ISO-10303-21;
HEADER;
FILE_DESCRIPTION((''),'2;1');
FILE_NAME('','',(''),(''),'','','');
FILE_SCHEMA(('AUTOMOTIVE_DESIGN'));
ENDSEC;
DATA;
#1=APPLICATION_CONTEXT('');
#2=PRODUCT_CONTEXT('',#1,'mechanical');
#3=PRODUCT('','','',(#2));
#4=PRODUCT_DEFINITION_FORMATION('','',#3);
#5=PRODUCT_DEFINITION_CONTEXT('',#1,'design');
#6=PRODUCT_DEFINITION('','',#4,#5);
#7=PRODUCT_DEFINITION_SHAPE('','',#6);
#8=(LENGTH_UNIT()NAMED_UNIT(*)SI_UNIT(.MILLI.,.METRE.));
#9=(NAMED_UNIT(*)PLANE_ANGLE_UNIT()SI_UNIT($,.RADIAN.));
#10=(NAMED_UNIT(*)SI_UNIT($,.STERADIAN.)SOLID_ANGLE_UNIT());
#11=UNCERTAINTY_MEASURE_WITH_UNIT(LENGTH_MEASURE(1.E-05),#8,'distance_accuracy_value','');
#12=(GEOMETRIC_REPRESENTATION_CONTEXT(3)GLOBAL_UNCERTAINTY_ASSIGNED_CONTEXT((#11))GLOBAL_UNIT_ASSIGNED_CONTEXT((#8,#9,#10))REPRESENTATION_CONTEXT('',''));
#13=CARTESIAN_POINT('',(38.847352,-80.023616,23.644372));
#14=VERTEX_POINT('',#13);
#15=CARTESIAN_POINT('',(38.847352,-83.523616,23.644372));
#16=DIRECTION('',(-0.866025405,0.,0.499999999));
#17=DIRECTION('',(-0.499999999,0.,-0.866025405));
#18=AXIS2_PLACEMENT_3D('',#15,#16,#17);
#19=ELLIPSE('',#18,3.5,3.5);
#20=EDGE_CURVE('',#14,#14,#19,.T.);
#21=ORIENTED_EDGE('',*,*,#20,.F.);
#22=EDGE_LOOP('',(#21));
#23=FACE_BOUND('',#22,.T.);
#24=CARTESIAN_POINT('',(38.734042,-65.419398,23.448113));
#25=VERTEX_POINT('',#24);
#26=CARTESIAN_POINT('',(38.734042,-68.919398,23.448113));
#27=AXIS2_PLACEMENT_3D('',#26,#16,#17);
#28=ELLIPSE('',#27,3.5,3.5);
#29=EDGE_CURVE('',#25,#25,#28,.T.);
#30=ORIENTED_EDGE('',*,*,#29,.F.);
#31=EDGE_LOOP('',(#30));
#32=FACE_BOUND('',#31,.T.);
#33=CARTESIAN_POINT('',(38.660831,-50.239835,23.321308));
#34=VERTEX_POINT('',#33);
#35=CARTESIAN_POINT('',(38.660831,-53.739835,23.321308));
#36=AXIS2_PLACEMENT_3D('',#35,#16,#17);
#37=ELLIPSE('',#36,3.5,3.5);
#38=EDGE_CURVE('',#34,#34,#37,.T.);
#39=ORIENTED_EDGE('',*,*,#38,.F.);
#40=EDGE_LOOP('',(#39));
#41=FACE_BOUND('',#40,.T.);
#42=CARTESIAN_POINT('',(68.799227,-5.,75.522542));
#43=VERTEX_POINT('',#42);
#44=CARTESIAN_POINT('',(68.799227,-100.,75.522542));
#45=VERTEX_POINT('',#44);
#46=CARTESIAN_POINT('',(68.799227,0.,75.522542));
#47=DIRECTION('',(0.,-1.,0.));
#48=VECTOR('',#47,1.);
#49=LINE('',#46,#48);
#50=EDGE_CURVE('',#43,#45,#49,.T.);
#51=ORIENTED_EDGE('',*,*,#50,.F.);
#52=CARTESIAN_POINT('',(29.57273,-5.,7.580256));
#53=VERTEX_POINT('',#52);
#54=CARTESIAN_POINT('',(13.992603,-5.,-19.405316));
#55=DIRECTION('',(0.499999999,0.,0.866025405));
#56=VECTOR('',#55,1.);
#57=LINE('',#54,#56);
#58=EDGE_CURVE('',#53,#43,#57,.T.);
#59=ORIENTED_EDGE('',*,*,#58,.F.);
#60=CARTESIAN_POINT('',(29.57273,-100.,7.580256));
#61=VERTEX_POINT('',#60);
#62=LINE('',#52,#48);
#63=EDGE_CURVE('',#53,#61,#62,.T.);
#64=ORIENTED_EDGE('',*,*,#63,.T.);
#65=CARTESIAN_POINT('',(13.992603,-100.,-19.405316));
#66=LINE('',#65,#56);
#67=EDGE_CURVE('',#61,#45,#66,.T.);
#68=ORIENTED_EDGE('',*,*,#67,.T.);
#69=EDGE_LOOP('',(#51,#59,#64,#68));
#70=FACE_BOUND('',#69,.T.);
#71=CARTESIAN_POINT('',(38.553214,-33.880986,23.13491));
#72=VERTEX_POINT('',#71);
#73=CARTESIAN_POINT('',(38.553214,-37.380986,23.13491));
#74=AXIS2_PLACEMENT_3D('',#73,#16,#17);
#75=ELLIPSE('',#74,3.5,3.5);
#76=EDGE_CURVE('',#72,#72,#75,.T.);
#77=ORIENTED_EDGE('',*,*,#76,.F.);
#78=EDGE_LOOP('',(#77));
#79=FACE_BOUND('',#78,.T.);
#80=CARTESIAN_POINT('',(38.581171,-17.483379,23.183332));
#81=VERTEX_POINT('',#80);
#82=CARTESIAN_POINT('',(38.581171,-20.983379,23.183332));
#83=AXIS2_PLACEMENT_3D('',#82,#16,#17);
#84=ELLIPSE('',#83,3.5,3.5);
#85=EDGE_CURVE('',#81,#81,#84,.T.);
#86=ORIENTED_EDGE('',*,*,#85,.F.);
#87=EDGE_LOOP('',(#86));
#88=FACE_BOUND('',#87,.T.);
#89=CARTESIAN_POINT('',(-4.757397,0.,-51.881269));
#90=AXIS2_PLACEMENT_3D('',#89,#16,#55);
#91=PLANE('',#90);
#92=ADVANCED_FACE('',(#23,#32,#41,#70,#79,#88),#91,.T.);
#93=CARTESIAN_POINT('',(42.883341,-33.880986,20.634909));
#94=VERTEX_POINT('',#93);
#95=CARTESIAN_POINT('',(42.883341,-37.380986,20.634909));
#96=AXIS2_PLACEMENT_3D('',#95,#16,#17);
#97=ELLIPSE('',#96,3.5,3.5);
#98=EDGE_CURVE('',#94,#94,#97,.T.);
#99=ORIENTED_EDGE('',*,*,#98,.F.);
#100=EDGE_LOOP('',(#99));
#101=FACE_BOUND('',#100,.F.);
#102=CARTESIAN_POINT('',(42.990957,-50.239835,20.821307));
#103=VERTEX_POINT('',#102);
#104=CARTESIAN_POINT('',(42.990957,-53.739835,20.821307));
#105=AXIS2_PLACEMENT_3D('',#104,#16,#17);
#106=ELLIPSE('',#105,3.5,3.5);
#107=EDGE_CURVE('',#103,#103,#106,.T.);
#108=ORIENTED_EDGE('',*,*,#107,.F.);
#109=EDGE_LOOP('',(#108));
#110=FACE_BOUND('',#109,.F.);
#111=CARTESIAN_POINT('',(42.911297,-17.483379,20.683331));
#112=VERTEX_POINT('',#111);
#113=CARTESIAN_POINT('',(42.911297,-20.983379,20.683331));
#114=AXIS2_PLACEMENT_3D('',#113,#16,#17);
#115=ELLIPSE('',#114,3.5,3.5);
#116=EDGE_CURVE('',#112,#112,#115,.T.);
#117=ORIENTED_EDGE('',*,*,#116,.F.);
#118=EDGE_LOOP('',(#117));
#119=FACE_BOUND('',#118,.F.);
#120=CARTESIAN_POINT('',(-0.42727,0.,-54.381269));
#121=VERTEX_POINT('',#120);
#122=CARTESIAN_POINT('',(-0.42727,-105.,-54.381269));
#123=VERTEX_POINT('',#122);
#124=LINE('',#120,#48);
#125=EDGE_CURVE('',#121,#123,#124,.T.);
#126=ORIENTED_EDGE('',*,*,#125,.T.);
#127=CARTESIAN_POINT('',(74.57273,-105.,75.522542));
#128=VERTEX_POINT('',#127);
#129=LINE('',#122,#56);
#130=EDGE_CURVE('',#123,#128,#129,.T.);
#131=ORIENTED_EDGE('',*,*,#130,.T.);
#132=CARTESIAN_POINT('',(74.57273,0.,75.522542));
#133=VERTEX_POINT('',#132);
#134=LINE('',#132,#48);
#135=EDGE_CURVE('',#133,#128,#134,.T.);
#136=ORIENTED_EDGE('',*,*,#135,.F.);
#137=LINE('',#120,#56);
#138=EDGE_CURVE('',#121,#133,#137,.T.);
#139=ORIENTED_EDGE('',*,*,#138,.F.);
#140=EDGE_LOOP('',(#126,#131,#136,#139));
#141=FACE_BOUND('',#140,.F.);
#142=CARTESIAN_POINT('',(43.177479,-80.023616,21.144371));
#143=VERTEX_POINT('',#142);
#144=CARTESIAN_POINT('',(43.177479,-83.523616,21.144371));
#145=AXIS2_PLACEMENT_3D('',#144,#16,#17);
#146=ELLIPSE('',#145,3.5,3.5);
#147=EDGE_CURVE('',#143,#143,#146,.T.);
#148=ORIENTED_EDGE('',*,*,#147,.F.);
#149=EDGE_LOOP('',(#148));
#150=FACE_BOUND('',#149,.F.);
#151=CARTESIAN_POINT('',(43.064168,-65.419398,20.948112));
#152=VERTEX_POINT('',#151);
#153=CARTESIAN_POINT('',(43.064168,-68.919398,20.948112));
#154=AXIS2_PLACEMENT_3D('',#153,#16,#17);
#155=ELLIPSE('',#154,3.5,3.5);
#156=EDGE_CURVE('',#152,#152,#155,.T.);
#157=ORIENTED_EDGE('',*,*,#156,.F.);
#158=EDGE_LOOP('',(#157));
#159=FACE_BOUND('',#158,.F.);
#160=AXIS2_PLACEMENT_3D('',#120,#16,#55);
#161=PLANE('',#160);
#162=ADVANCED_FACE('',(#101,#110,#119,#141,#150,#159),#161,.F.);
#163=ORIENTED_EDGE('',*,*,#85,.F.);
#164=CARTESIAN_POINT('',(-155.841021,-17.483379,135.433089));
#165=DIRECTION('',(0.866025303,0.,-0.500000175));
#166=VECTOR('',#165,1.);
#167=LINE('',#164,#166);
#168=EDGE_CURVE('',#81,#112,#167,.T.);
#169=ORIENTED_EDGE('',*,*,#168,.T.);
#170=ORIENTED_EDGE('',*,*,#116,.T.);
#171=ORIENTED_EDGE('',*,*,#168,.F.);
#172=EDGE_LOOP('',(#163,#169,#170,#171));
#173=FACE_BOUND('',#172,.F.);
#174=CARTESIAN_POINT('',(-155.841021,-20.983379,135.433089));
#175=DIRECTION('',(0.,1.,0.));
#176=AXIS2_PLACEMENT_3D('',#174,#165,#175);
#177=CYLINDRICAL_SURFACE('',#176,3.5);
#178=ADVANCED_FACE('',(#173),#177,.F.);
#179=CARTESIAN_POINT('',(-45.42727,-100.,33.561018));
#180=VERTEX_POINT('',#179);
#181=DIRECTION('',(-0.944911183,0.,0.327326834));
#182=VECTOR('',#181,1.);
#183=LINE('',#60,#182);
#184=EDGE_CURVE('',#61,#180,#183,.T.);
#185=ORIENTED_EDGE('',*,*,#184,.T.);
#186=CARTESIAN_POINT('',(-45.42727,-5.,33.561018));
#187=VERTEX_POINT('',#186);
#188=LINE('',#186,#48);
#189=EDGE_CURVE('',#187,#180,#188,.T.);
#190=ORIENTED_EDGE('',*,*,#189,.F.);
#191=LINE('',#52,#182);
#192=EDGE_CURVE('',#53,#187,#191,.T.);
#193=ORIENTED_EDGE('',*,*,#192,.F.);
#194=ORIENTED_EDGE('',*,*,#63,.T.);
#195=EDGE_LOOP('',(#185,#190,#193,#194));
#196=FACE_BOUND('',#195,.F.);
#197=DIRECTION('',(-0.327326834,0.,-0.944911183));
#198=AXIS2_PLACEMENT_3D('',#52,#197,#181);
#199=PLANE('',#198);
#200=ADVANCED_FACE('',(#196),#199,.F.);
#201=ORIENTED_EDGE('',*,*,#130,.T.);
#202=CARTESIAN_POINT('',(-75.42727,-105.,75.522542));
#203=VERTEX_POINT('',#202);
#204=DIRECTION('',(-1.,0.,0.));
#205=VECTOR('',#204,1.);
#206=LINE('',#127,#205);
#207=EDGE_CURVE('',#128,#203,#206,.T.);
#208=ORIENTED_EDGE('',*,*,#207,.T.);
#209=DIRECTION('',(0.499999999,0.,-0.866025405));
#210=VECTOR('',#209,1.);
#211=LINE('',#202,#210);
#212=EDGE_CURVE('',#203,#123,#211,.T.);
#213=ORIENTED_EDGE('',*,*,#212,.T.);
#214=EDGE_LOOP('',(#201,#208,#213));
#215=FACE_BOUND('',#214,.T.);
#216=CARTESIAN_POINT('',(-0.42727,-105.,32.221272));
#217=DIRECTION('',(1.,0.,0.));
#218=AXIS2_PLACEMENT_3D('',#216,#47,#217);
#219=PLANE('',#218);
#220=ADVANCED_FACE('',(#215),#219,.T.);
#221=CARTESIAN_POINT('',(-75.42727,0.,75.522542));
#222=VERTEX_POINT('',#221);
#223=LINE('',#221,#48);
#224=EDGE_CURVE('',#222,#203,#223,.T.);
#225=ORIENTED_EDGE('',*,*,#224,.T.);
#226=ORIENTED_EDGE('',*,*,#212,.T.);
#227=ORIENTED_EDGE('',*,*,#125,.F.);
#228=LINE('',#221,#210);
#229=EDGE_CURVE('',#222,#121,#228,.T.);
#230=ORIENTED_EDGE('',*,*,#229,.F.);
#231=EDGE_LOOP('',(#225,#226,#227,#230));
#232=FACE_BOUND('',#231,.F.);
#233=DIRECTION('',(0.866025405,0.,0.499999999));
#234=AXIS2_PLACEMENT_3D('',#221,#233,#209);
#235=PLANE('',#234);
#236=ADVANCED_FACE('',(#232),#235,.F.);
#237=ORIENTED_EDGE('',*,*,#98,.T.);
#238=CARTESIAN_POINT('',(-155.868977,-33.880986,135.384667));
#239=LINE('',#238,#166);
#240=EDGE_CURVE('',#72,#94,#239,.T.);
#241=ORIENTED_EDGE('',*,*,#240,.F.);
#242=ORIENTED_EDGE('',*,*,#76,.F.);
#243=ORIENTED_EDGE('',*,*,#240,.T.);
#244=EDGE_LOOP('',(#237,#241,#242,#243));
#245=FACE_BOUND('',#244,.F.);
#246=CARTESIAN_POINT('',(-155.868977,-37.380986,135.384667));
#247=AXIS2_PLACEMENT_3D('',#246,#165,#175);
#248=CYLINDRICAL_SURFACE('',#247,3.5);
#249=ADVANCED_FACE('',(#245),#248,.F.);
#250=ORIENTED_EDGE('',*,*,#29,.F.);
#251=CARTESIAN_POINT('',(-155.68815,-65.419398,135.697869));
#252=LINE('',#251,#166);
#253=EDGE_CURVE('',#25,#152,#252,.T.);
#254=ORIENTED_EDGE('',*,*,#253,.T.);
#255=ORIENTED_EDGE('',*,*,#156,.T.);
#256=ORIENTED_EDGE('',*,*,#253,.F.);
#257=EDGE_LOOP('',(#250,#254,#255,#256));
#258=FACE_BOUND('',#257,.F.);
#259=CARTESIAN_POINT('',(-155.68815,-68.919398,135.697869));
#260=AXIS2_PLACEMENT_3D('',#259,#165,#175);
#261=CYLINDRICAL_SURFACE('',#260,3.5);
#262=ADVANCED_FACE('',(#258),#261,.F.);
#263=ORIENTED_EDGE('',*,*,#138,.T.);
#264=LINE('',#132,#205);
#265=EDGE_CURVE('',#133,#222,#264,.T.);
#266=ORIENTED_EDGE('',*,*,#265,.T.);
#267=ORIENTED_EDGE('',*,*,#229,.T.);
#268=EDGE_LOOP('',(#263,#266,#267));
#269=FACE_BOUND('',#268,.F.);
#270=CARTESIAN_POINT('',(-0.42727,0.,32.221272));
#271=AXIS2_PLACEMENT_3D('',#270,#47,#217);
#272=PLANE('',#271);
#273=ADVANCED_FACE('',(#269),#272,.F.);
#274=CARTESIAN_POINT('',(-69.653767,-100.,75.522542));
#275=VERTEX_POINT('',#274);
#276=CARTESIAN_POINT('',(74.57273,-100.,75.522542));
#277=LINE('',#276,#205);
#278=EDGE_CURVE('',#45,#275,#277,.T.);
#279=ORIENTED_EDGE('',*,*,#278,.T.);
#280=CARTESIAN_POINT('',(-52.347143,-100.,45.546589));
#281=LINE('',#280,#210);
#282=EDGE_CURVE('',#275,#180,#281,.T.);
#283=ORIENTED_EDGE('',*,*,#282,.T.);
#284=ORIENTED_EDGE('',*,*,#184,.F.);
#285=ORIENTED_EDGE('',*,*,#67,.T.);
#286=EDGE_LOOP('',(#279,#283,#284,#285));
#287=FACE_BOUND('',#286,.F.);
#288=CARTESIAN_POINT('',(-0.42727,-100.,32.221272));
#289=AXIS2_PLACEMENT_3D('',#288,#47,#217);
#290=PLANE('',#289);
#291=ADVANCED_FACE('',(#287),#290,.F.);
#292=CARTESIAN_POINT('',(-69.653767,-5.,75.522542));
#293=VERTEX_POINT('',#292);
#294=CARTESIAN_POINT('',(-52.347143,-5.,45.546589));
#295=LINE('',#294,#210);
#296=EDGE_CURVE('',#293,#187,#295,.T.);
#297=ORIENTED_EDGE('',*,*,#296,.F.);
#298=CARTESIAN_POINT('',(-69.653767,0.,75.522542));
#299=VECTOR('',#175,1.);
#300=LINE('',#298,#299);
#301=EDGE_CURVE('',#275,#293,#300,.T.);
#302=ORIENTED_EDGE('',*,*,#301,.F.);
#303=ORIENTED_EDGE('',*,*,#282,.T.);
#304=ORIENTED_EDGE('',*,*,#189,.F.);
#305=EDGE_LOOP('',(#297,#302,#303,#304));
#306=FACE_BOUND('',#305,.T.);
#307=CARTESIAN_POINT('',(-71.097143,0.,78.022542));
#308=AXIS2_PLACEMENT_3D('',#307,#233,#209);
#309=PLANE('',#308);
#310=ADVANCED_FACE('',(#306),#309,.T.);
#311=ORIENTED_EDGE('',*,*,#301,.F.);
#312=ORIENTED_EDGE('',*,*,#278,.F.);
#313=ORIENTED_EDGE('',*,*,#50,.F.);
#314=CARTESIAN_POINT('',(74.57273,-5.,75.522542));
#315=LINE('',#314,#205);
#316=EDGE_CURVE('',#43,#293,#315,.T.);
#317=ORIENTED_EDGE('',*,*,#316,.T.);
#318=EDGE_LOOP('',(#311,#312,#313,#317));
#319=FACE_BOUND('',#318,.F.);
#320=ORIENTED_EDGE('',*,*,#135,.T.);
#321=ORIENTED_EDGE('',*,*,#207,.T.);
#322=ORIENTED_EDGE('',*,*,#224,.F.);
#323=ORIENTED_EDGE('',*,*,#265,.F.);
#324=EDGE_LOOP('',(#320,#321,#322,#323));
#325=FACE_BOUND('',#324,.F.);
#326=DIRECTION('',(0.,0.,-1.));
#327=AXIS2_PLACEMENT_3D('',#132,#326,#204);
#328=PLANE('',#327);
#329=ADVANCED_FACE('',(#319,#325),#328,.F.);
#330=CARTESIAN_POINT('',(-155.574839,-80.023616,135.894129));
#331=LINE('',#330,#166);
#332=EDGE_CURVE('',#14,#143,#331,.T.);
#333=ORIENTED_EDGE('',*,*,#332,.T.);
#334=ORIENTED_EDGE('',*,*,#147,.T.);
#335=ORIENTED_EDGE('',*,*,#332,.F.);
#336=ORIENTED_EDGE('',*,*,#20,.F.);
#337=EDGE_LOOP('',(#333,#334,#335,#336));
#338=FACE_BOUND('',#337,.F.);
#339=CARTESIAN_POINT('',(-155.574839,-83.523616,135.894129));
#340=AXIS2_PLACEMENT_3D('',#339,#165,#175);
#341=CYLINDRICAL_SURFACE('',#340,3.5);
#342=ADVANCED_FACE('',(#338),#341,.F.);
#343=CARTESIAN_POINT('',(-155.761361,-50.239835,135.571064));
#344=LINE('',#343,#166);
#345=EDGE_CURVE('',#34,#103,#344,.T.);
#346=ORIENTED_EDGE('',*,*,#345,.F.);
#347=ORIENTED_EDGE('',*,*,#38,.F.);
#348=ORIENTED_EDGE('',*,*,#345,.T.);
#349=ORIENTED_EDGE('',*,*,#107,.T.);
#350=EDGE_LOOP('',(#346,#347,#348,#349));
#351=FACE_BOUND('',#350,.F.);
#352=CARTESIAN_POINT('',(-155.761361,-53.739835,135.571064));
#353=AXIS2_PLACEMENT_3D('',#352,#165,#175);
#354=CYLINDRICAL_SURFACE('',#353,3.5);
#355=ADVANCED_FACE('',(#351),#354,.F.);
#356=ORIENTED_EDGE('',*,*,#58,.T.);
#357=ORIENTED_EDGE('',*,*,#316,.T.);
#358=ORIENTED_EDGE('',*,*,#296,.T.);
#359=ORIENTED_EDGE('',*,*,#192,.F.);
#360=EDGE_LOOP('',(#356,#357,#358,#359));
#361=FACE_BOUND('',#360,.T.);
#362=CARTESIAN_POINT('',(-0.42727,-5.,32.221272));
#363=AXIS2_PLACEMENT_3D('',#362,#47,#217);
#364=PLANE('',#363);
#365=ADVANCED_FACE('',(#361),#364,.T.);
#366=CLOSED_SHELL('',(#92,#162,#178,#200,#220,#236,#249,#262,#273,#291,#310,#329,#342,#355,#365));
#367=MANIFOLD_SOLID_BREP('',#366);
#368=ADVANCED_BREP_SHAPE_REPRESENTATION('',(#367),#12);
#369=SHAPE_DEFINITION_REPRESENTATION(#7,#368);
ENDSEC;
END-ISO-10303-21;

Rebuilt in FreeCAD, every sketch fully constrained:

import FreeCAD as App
import Part
import Sketcher
Q = App.Units.Quantity


def faces_at(feature, points):
    """Names of the faces that lie closest to the given points."""
    faces = feature.Shape.Faces
    near = lambda p: min(range(len(faces)), key=lambda i: faces[i].distToShape(Part.Vertex(*p))[0])
    return sorted({f"Face{near(p) + 1}" for p in points})


def add_polygon(sketch, points):
    """Adds a closed chain of lines whose ends are joined by coincident constraints."""
    first, n = sketch.GeometryCount, len(points)
    for a, b in zip(points, points[1:] + points[:1]):
        sketch.addGeometry(Part.LineSegment(App.Vector(*a, 0), App.Vector(*b, 0)), False)
    for i in range(n):
        sketch.addConstraint(Sketcher.Constraint("Coincident", first + i, 2, first + (i + 1) % n, 1))

doc = App.newDocument("Part")
body = doc.addObject("PartDesign::Body", "Body")

sketch1 = body.newObject("Sketcher::SketchObject", "Sketch")
sketch1.AttachmentSupport = (doc.getObject("XZ_Plane"), [""])
sketch1.MapMode = "FlatFace"
add_polygon(sketch1, [(75, 76), (-75, 76), (0, -54)])
sketch1.addConstraint([
    Sketcher.Constraint("Horizontal", 0),
    Sketcher.Constraint("Equal", 1, 2),
    Sketcher.Constraint("DistanceX", 0, 2, 0, 1, Q("150 mm")),
    Sketcher.Constraint("Angle", 1, Q("-60 deg")),
    Sketcher.Constraint("DistanceX", 0, 2, -1, 1, Q("75.42727 mm")),
    Sketcher.Constraint("DistanceY", -1, 1, 0, 2, Q("75.522542 mm")),
])
pad1 = body.newObject("PartDesign::Pad", "Pad")
pad1.Profile = sketch1
pad1.Length = 105
doc.recompute()

thickness = body.newObject("PartDesign::Thickness", "Thickness")
thickness.Base = (pad1, faces_at(pad1, [(-0.427, -52.5, 75.523)]))
thickness.Value = 5
thickness.Reversed = True
thickness.Join = "Arc"

sketch2 = body.newObject("Sketcher::SketchObject", "Sketch001")
sketch2.AttachmentSupport = (doc.getObject("XZ_Plane"), [""])
sketch2.MapMode = "FlatFace"
sketch2.AttachmentOffset = App.Placement(App.Vector(0, 0, 5), App.Rotation())
add_polygon(sketch2, [(30, 8), (-45, 34), (0, -44)])
sketch2.addConstraint([
    Sketcher.Constraint("Angle", 1, Q("-60 deg")),
    Sketcher.Constraint("Angle", 2, Q("60 deg")),
    Sketcher.Constraint("Distance", 1, Q("90.000001 mm")),
    Sketcher.Constraint("Distance", 2, Q("60.000001 mm")),
    Sketcher.Constraint("DistanceX", 0, 2, -1, 1, Q("45.42727 mm")),
    Sketcher.Constraint("DistanceY", 1, 2, -1, 1, Q("44.381269 mm")),
])
pad2 = body.newObject("PartDesign::Pad", "Pad001")
pad2.Profile = sketch2
pad2.Length = 95

sketch3 = body.newObject("Sketcher::SketchObject", "Sketch002")
sketch3.Placement = App.Placement(App.Vector(18.897199, 0, -10.910308), App.Rotation(App.Vector(0, -1, 0), App.Vector(0.500000175, 0, 0.866025303), App.Vector(-0.866025303, 0, 0.500000175), "ZXY"))
sketch3.addGeometry([
    Part.Circle(App.Vector(83.5, 39.9, 0), App.Vector(0, 0, 1), 3.5),
    Part.Circle(App.Vector(21, 39.4, 0), App.Vector(0, 0, 1), 3.5),
    Part.Circle(App.Vector(37.4, 39.3, 0), App.Vector(0, 0, 1), 3.5),
    Part.Circle(App.Vector(53.7, 39.5, 0), App.Vector(0, 0, 1), 3.5),
    Part.Circle(App.Vector(68.9, 39.7, 0), App.Vector(0, 0, 1), 3.5),
], False)
sketch3.addConstraint([
    Sketcher.Constraint("Equal", 0, 1),
    Sketcher.Constraint("Equal", 1, 2),
    Sketcher.Constraint("Equal", 2, 3),
    Sketcher.Constraint("Equal", 3, 4),
    Sketcher.Constraint("Diameter", 0, Q("7 mm")),
    Sketcher.Constraint("DistanceX", -1, 1, 4, 3, Q("68.919398 mm")),
    Sketcher.Constraint("DistanceX", -1, 1, 1, 3, Q("20.983379 mm")),
    Sketcher.Constraint("DistanceY", -1, 1, 2, 3, Q("39.312031 mm")),
    Sketcher.Constraint("DistanceX", 2, 3, 0, 3, Q("46.14263 mm")),
    Sketcher.Constraint("DistanceX", 2, 3, 3, 3, Q("16.358849 mm")),
    Sketcher.Constraint("DistanceY", 1, 3, 3, 3, Q("0.15932 mm")),
    Sketcher.Constraint("DistanceX", 4, 3, 0, 3, Q("14.604218 mm")),
    Sketcher.Constraint("DistanceY", 4, 3, 0, 3, Q("0.226621 mm")),
    Sketcher.Constraint("DistanceY", 1, 3, 4, 3, Q("0.305742 mm")),
    Sketcher.Constraint("DistanceY", -1, 1, 0, 3, Q("39.900307 mm")),
])
doc.recompute()
hole = body.newObject("PartDesign::Hole", "Hole")
hole.Profile = sketch3
hole.ThreadType = "None"
hole.Diameter = 7
hole.DepthType = "ThroughAll"

doc.recompute()
